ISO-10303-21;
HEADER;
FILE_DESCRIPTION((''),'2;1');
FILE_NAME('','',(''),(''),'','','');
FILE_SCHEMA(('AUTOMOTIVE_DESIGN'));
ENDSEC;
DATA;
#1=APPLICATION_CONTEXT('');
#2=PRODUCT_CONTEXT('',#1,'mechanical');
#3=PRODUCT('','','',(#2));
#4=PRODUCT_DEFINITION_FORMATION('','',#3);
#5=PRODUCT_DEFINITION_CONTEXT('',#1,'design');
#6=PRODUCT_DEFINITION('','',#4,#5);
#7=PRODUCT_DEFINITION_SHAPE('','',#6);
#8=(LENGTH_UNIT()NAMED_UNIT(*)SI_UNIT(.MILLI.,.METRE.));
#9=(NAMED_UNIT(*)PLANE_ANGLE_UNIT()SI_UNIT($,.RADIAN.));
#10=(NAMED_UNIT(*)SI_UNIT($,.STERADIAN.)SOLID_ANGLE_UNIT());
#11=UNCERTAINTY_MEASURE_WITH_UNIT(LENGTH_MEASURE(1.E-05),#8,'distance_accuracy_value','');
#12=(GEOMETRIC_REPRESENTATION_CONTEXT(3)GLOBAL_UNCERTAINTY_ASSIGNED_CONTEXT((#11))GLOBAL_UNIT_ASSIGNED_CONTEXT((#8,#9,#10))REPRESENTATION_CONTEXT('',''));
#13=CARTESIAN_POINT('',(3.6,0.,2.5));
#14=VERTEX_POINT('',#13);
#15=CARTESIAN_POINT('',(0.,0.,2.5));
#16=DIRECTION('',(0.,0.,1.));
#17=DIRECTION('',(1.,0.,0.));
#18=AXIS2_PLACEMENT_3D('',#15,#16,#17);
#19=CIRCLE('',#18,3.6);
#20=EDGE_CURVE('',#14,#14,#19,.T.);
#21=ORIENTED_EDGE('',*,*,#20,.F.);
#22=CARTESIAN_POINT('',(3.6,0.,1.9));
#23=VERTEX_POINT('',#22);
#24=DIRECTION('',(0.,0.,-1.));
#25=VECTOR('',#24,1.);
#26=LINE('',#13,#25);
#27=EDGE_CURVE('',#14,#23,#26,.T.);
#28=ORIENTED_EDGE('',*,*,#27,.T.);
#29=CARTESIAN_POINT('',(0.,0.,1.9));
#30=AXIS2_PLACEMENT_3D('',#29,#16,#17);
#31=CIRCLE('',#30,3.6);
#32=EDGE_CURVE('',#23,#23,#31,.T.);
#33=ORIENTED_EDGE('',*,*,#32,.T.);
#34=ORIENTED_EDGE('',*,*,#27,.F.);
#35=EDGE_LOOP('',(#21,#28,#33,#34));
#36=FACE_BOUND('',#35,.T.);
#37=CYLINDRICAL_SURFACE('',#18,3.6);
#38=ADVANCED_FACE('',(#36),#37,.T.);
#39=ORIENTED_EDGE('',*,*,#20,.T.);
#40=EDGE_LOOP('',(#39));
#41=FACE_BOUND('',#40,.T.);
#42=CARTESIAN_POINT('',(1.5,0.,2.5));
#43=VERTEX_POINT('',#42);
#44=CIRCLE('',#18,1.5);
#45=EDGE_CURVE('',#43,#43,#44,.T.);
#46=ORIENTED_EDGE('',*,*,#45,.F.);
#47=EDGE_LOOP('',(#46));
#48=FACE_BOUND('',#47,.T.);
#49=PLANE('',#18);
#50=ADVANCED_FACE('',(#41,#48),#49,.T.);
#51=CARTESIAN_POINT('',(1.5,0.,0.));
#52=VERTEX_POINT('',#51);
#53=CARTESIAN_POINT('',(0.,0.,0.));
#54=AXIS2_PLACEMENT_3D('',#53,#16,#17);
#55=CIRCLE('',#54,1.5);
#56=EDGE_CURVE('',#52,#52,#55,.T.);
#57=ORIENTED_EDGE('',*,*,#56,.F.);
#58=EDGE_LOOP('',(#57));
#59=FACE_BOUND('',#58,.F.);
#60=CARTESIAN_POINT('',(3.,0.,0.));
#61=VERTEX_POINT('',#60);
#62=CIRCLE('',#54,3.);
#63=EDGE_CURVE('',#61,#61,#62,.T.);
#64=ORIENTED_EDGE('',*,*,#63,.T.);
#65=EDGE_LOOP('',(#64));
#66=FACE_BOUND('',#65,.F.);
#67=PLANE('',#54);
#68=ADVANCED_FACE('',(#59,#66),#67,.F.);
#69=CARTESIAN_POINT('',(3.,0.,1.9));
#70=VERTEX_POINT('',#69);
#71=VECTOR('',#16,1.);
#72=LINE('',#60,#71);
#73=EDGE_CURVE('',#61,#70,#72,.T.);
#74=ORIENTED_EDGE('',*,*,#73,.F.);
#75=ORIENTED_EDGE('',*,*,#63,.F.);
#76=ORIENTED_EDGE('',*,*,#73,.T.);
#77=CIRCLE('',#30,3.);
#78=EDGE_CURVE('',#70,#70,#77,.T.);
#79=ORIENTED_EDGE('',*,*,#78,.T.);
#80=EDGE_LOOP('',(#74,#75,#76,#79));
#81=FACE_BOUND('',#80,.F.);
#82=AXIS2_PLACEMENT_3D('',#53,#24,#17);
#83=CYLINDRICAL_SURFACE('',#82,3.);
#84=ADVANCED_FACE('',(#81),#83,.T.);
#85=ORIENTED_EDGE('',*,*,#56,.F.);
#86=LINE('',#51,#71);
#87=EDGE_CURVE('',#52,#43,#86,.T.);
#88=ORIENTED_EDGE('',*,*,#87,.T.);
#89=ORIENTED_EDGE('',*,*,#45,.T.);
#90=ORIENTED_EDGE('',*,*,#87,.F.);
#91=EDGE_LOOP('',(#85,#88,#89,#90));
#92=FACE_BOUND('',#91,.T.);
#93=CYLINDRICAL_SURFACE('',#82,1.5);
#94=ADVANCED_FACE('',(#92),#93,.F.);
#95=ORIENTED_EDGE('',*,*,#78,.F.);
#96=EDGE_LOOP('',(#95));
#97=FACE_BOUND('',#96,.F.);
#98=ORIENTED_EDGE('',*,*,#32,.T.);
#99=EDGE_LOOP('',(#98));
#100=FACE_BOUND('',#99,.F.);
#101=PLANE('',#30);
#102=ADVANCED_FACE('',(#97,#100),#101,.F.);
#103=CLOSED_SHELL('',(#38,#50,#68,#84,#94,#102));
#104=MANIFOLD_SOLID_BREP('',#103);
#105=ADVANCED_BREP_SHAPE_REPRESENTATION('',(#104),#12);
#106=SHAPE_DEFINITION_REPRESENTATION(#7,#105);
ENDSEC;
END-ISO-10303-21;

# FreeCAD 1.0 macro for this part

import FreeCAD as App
import Part
import Sketcher
from FreeCAD import Vector

doc = App.newDocument("Part")
params = doc.addObject("Spreadsheet::Sheet", "Params")
for row, (alias, value) in enumerate([
    ("sketch1_diameter", "6 mm"),
    ("sketch1_diameter2", "3 mm"),
    ("pad1_length", "2.5 mm"),
    ("sketch2_diameter", "6 mm"),
    ("sketch2_diameter2", "7.2 mm"),
    ("pad2_length", "0.6 mm"),
], start=1):
    params.set(f"A{row}", alias)
    params.set(f"B{row}", "=" + value)
    params.setAlias(f"B{row}", alias)

body = doc.addObject("PartDesign::Body", "Body")

# Sketch on XY plane
sketch1 = doc.addObject("Sketcher::SketchObject", "Sketch")
body.addObject(sketch1)
sketch1.AttachmentSupport = (doc.XY_Plane, [""])
sketch1.MapMode = "FlatFace"
sketch1.addGeometry([
    Part.Circle(Vector(0, 0, 0), Vector(0, 0, 1), 3),
    Part.Circle(Vector(0, 0, 0), Vector(0, 0, 1), 1.5),
], False)
sketch1.addConstraint([
    Sketcher.Constraint("Coincident", 0, 3, -1, 1),
    Sketcher.Constraint("Coincident", 1, 3, -1, 1),
    Sketcher.Constraint("Diameter", 0, 6.0),
    Sketcher.Constraint("Diameter", 1, 3.0),
])
sketch1.setExpression("Constraints[2]", "Params.sketch1_diameter")
sketch1.setExpression("Constraints[3]", "Params.sketch1_diameter2")
pad1 = doc.addObject("PartDesign::Pad", "Pad")
body.addObject(pad1)
pad1.Profile = sketch1
pad1.setExpression("Length", "Params.pad1_length")

# Sketch on XY plane
sketch2 = doc.addObject("Sketcher::SketchObject", "Sketch001")
body.addObject(sketch2)
sketch2.AttachmentSupport = (doc.XY_Plane, [""])
sketch2.MapMode = "FlatFace"
sketch2.AttachmentOffset = App.Placement(Vector(0, 0, 2.5), App.Rotation())
sketch2.addGeometry([
    Part.Circle(Vector(0, 0, 0), Vector(0, 0, 1), 3.6),
    Part.Circle(Vector(0, 0, 0), Vector(0, 0, 1), 3),
], False)
sketch2.addConstraint([
    Sketcher.Constraint("Coincident", 0, 3, -1, 1),
    Sketcher.Constraint("Coincident", 1, 3, -1, 1),
    Sketcher.Constraint("Diameter", 1, 6.0),
    Sketcher.Constraint("Diameter", 0, 7.2),
])
sketch2.setExpression("Constraints[2]", "Params.sketch2_diameter")
sketch2.setExpression("Constraints[3]", "Params.sketch2_diameter2")
pad2 = doc.addObject("PartDesign::Pad", "Pad001")
body.addObject(pad2)
pad2.Profile = sketch2
pad2.setExpression("Length", "Params.pad2_length")
pad2.Reversed = True

doc.recompute()
